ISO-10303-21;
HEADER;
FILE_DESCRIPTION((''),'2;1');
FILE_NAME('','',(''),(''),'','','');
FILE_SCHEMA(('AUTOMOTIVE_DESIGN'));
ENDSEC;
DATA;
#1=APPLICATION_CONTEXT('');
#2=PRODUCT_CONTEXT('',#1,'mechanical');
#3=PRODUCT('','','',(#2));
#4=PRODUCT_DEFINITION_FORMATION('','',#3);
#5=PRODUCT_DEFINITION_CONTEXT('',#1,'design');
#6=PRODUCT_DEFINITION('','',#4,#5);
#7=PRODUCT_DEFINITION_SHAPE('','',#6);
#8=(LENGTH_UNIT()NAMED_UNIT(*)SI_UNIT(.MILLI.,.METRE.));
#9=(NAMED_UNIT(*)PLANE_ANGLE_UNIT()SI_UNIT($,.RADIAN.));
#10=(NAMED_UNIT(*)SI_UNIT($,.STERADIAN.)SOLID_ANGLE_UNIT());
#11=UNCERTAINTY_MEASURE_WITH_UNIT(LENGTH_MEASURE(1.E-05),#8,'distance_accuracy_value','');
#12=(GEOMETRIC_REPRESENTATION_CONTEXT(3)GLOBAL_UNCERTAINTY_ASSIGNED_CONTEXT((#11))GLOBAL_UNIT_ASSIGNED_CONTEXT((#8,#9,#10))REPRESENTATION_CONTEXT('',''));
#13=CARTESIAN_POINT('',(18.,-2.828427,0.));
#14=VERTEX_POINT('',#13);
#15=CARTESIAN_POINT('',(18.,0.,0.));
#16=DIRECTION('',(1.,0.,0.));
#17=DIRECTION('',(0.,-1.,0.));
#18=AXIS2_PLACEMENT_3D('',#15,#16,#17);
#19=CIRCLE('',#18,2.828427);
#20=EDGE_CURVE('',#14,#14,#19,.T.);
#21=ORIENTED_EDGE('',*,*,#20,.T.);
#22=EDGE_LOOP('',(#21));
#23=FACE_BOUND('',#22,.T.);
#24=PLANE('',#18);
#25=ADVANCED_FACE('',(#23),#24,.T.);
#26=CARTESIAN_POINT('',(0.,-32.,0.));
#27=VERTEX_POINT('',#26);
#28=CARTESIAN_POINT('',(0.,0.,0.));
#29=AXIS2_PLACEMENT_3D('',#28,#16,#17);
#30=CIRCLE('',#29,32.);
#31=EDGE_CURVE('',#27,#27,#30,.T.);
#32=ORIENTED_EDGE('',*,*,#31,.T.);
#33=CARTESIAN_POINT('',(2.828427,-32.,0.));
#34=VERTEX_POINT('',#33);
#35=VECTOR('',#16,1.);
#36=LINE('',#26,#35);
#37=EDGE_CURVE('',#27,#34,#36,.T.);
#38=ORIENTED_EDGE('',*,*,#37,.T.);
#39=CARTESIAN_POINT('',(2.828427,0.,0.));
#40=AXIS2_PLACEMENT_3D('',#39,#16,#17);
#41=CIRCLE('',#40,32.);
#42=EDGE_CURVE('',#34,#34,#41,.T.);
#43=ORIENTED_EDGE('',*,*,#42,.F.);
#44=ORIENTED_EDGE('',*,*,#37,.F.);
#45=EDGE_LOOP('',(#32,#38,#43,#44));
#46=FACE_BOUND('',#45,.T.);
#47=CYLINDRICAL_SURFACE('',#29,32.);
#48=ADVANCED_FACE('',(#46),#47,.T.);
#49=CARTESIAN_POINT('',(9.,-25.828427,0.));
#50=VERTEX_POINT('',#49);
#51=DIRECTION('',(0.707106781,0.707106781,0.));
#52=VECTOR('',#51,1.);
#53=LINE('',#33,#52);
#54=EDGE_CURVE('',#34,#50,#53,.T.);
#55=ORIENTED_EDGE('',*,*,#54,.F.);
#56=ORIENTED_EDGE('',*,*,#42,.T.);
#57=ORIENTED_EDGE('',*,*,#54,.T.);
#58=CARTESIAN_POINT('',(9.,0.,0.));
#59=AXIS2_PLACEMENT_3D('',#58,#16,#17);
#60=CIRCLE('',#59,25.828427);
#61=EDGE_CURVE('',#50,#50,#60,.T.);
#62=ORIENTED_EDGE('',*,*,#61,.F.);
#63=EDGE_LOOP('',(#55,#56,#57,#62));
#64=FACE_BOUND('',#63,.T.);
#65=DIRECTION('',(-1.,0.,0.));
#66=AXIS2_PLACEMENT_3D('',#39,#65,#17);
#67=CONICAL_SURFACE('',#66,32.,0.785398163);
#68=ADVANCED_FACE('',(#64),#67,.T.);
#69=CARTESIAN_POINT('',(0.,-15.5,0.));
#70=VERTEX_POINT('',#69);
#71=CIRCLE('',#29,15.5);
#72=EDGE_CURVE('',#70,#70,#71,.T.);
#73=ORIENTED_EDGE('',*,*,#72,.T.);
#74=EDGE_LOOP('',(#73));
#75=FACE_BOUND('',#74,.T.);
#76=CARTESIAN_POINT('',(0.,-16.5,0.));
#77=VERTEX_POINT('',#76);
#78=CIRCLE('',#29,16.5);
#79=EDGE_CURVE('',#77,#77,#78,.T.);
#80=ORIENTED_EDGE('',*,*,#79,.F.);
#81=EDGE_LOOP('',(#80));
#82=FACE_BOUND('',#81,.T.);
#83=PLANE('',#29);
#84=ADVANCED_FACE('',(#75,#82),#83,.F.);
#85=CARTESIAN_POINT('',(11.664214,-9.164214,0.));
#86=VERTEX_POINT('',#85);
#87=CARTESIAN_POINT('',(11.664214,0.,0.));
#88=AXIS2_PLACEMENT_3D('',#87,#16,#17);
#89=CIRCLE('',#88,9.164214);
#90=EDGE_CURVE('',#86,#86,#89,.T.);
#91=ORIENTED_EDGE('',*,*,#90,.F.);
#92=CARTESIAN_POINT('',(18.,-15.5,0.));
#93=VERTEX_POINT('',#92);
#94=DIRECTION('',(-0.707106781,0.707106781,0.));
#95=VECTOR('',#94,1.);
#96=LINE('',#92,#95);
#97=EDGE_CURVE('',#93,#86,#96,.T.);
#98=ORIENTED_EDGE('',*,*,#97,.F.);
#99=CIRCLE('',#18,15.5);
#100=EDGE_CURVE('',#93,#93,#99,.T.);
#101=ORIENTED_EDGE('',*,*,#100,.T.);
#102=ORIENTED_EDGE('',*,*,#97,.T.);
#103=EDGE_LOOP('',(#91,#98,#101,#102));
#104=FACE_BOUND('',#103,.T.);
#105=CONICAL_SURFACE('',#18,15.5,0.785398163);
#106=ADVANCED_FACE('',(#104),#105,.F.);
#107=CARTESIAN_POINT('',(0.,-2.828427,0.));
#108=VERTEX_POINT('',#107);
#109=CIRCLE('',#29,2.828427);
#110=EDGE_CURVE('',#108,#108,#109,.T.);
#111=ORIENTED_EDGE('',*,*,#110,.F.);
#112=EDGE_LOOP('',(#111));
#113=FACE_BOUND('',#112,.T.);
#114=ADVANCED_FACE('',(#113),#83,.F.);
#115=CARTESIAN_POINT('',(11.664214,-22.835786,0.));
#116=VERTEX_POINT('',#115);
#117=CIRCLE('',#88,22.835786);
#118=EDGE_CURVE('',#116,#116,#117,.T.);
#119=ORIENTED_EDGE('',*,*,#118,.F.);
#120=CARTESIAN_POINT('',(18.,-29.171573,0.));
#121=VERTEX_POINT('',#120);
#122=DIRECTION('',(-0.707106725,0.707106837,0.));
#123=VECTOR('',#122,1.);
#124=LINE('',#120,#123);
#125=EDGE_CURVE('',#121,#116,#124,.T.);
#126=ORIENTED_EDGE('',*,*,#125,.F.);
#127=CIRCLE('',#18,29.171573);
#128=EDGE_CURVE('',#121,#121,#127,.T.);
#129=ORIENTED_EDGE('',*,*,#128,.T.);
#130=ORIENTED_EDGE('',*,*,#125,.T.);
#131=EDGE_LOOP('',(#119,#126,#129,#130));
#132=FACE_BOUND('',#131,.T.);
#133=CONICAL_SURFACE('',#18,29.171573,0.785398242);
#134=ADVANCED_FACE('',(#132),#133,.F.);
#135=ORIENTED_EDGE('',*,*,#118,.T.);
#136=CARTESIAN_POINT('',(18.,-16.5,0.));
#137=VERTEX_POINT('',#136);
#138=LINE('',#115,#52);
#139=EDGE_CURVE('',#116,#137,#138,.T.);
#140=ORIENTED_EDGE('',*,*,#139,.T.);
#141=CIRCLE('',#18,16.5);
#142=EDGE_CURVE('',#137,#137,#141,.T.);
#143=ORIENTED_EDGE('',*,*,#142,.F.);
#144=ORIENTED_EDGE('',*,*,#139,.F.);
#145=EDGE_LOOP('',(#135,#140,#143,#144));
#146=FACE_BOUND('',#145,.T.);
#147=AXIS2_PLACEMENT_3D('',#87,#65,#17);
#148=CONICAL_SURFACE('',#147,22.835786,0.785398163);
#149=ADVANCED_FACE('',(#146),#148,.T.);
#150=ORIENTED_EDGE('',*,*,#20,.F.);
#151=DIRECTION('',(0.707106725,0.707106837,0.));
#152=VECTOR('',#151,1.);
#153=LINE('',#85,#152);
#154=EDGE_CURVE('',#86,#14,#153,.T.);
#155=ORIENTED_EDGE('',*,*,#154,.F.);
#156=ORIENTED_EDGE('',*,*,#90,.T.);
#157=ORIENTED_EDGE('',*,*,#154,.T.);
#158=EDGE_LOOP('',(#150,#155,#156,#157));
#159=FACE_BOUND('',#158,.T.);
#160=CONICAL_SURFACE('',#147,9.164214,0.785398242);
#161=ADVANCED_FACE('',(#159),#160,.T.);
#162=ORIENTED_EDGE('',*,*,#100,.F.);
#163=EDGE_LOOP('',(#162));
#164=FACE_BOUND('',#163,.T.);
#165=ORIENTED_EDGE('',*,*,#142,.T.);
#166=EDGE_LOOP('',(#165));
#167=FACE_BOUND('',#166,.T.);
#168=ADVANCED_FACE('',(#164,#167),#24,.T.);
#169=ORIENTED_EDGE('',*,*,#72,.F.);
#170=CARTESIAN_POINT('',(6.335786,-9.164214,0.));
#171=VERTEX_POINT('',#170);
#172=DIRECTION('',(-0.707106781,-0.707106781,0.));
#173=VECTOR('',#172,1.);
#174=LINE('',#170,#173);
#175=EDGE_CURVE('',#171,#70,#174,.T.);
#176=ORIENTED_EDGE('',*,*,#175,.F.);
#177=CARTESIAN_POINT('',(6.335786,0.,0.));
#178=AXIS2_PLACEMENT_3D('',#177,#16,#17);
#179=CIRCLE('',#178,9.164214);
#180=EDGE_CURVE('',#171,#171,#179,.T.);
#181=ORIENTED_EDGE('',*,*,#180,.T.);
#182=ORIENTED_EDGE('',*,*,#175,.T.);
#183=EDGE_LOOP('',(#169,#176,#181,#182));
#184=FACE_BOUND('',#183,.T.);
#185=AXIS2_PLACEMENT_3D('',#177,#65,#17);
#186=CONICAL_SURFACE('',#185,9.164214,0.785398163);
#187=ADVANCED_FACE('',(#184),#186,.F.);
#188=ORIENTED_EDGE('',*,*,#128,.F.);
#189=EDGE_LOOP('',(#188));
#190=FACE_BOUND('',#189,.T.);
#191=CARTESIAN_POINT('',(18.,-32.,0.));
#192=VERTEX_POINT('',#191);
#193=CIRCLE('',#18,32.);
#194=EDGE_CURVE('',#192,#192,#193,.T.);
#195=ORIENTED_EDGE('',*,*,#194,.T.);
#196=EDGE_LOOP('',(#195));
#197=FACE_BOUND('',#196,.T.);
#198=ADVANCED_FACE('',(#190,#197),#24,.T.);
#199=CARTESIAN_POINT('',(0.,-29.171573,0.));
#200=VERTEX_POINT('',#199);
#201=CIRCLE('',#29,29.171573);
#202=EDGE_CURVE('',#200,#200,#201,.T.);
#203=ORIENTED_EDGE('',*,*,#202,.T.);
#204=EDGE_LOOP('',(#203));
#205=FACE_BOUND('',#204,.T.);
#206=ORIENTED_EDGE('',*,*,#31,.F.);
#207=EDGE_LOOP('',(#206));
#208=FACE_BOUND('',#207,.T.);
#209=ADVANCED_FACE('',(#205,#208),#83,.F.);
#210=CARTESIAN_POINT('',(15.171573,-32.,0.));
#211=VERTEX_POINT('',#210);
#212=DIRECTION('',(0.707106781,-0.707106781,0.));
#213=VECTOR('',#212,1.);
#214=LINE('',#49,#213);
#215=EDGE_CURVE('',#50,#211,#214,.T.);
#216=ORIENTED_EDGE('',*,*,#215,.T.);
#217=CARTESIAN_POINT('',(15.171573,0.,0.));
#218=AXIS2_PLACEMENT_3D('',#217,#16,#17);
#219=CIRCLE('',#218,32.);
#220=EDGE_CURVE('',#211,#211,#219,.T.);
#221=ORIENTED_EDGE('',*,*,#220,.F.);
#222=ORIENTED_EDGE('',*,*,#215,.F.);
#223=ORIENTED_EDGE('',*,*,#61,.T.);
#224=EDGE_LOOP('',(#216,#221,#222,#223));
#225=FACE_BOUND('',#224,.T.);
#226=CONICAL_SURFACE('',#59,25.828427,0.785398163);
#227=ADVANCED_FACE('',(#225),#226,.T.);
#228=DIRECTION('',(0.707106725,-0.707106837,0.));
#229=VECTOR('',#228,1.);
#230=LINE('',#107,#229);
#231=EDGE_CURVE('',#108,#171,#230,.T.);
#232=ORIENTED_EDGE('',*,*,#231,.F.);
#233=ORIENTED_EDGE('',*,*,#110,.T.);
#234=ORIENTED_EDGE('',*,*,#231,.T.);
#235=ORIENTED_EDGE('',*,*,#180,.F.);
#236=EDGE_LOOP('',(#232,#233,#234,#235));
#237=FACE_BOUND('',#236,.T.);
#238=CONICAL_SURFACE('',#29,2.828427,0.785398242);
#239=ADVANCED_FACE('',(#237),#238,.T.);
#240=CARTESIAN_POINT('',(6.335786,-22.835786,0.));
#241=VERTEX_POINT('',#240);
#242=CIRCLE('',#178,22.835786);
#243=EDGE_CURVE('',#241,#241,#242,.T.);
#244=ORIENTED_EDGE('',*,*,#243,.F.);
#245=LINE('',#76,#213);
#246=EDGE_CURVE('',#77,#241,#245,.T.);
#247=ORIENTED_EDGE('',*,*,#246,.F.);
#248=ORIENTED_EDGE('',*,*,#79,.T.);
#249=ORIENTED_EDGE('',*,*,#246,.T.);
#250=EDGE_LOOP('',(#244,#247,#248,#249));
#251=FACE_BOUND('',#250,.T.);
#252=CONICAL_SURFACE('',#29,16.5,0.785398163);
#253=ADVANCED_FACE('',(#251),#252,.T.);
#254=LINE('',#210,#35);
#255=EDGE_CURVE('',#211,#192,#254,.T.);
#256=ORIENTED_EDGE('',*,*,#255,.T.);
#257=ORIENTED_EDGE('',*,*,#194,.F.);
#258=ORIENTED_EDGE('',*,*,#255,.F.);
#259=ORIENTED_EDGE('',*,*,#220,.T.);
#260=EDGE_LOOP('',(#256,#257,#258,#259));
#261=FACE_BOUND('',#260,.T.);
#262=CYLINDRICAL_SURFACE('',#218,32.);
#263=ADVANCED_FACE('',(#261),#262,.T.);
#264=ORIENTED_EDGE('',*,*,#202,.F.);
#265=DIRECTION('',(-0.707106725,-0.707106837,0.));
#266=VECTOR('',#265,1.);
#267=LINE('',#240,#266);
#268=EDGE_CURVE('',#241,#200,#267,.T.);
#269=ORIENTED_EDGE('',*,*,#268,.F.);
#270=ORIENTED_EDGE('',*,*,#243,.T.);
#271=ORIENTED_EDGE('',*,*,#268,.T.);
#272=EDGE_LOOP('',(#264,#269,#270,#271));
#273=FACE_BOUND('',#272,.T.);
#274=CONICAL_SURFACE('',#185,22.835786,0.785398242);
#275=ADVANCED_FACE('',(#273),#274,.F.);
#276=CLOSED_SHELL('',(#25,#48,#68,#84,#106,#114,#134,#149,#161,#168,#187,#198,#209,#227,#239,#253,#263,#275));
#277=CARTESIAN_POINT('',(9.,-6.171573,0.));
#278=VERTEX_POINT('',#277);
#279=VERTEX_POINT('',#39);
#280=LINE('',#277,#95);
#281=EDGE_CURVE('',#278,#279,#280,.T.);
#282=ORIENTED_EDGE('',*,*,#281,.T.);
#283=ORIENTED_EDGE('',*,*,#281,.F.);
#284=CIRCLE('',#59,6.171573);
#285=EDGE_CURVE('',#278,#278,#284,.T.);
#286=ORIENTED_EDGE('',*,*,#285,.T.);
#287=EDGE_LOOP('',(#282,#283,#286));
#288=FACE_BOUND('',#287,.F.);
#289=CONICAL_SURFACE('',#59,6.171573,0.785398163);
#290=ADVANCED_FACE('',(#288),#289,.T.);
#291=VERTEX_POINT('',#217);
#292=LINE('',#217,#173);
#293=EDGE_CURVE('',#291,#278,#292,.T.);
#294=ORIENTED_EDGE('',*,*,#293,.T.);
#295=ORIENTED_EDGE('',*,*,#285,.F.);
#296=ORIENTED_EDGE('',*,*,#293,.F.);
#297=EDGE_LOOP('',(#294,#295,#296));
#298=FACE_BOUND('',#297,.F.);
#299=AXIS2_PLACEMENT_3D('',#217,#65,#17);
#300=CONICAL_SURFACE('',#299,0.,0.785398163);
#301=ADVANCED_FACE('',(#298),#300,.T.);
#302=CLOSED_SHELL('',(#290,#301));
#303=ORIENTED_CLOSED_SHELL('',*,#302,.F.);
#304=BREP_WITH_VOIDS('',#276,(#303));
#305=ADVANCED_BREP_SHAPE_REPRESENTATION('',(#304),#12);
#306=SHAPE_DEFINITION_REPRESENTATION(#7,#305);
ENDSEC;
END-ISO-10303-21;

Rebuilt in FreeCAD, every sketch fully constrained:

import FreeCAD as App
import Part
import Sketcher
Q = App.Units.Quantity

doc = App.newDocument("Part")
body = doc.addObject("PartDesign::Body", "Body")

sketch1 = body.newObject("Sketcher::SketchObject", "Sketch")
sketch1.AttachmentSupport = (doc.getObject("XY_Plane"), [""])
sketch1.MapMode = "FlatFace"
sketch1.addGeometry(Part.LineSegment(App.Vector(2.8, 0, 0), App.Vector(0, 0, 0)), False)
sketch1.addGeometry(Part.LineSegment(App.Vector(0, 0, 0), App.Vector(0, -2.8, 0)), False)
sketch1.addGeometry(Part.LineSegment(App.Vector(0, -2.8, 0), App.Vector(6.3, -9.2, 0)), False)
sketch1.addGeometry(Part.LineSegment(App.Vector(6.3, -9.2, 0), App.Vector(0, -15.5, 0)), False)
sketch1.addGeometry(Part.LineSegment(App.Vector(0, -15.5, 0), App.Vector(0, -16.5, 0)), False)
sketch1.addGeometry(Part.LineSegment(App.Vector(0, -16.5, 0), App.Vector(6.3, -22.8, 0)), False)
sketch1.addGeometry(Part.LineSegment(App.Vector(6.3, -22.8, 0), App.Vector(0, -29.2, 0)), False)
sketch1.addGeometry(Part.LineSegment(App.Vector(0, -29.2, 0), App.Vector(0, -32, 0)), False)
sketch1.addGeometry(Part.LineSegment(App.Vector(0, -32, 0), App.Vector(2.8, -32, 0)), False)
sketch1.addGeometry(Part.LineSegment(App.Vector(2.8, -32, 0), App.Vector(9, -25.8, 0)), False)
sketch1.addGeometry(Part.LineSegment(App.Vector(9, -25.8, 0), App.Vector(15.2, -32, 0)), False)
sketch1.addGeometry(Part.LineSegment(App.Vector(15.2, -32, 0), App.Vector(18, -32, 0)), False)
sketch1.addGeometry(Part.LineSegment(App.Vector(18, -32, 0), App.Vector(18, -29.2, 0)), False)
sketch1.addGeometry(Part.LineSegment(App.Vector(18, -29.2, 0), App.Vector(11.7, -22.8, 0)), False)
sketch1.addGeometry(Part.LineSegment(App.Vector(11.7, -22.8, 0), App.Vector(18, -16.5, 0)), False)
sketch1.addGeometry(Part.LineSegment(App.Vector(18, -16.5, 0), App.Vector(18, -15.5, 0)), False)
sketch1.addGeometry(Part.LineSegment(App.Vector(18, -15.5, 0), App.Vector(11.7, -9.2, 0)), False)
sketch1.addGeometry(Part.LineSegment(App.Vector(11.7, -9.2, 0), App.Vector(18, -2.8, 0)), False)
sketch1.addGeometry(Part.LineSegment(App.Vector(18, -2.8, 0), App.Vector(18, 0, 0)), False)
sketch1.addGeometry(Part.LineSegment(App.Vector(18, 0, 0), App.Vector(15.2, 0, 0)), False)
sketch1.addGeometry(Part.LineSegment(App.Vector(15.2, 0, 0), App.Vector(9, -6.2, 0)), False)
sketch1.addGeometry(Part.LineSegment(App.Vector(9, -6.2, 0), App.Vector(2.8, 0, 0)), False)
sketch1.addConstraint(Sketcher.Constraint("Coincident", 0, 2, 1, 1))
sketch1.addConstraint(Sketcher.Constraint("Coincident", 1, 2, 2, 1))
sketch1.addConstraint(Sketcher.Constraint("Coincident", 2, 2, 3, 1))
sketch1.addConstraint(Sketcher.Constraint("Coincident", 3, 2, 4, 1))
sketch1.addConstraint(Sketcher.Constraint("Coincident", 4, 2, 5, 1))
sketch1.addConstraint(Sketcher.Constraint("Coincident", 5, 2, 6, 1))
sketch1.addConstraint(Sketcher.Constraint("Coincident", 6, 2, 7, 1))
sketch1.addConstraint(Sketcher.Constraint("Coincident", 7, 2, 8, 1))
sketch1.addConstraint(Sketcher.Constraint("Coincident", 8, 2, 9, 1))
sketch1.addConstraint(Sketcher.Constraint("Coincident", 9, 2, 10, 1))
sketch1.addConstraint(Sketcher.Constraint("Coincident", 10, 2, 11, 1))
sketch1.addConstraint(Sketcher.Constraint("Coincident", 11, 2, 12, 1))
sketch1.addConstraint(Sketcher.Constraint("Coincident", 12, 2, 13, 1))
sketch1.addConstraint(Sketcher.Constraint("Coincident", 13, 2, 14, 1))
sketch1.addConstraint(Sketcher.Constraint("Coincident", 14, 2, 15, 1))
sketch1.addConstraint(Sketcher.Constraint("Coincident", 15, 2, 16, 1))
sketch1.addConstraint(Sketcher.Constraint("Coincident", 16, 2, 17, 1))
sketch1.addConstraint(Sketcher.Constraint("Coincident", 17, 2, 18, 1))
sketch1.addConstraint(Sketcher.Constraint("Coincident", 18, 2, 19, 1))
sketch1.addConstraint(Sketcher.Constraint("Coincident", 19, 2, 20, 1))
sketch1.addConstraint(Sketcher.Constraint("Coincident", 20, 2, 21, 1))
sketch1.addConstraint(Sketcher.Constraint("Coincident", 21, 2, 0, 1))
sketch1.addConstraint(Sketcher.Constraint("Horizontal", 0))
sketch1.addConstraint(Sketcher.Constraint("Vertical", 1))
sketch1.addConstraint(Sketcher.Constraint("Vertical", 4))
sketch1.addConstraint(Sketcher.Constraint("Vertical", 7))
sketch1.addConstraint(Sketcher.Constraint("Horizontal", 8))
sketch1.addConstraint(Sketcher.Constraint("Horizontal", 11))
sketch1.addConstraint(Sketcher.Constraint("Vertical", 12))
sketch1.addConstraint(Sketcher.Constraint("Vertical", 15))
sketch1.addConstraint(Sketcher.Constraint("Vertical", 18))
sketch1.addConstraint(Sketcher.Constraint("Horizontal", 19))
sketch1.addConstraint(Sketcher.Constraint("Coincident", 0, 2, -1, 1))
sketch1.addConstraint(Sketcher.Constraint("PointOnObject", 3, 2, -2))
sketch1.addConstraint(Sketcher.Constraint("PointOnObject", 6, 2, -2))
sketch1.addConstraint(Sketcher.Constraint("PointOnObject", 18, 2, -1))
sketch1.addConstraint(Sketcher.Constraint("Perpendicular", 2, 3))
sketch1.addConstraint(Sketcher.Constraint("Perpendicular", 3, 5))
sketch1.addConstraint(Sketcher.Constraint("Perpendicular", 5, 6))
sketch1.addConstraint(Sketcher.Constraint("Parallel", 6, 9))
sketch1.addConstraint(Sketcher.Constraint("Perpendicular", 9, 10))
sketch1.addConstraint(Sketcher.Constraint("Parallel", 10, 13))
sketch1.addConstraint(Sketcher.Constraint("Perpendicular", 13, 14))
sketch1.addConstraint(Sketcher.Constraint("Perpendicular", 14, 16))
sketch1.addConstraint(Sketcher.Constraint("Perpendicular", 16, 17))
sketch1.addConstraint(Sketcher.Constraint("Parallel", 17, 20))
sketch1.addConstraint(Sketcher.Constraint("Perpendicular", 20, 21))
sketch1.addConstraint(Sketcher.Constraint("Horizontal", 8, 2, 10, 2))
sketch1.addConstraint(Sketcher.Constraint("Horizontal", 6, 2, 12, 2))
sketch1.addConstraint(Sketcher.Constraint("Horizontal", 5, 2, 13, 2))
sketch1.addConstraint(Sketcher.Constraint("Horizontal", 4, 2, 14, 2))
sketch1.addConstraint(Sketcher.Constraint("Horizontal", 3, 2, 15, 2))
sketch1.addConstraint(Sketcher.Constraint("Horizontal", 2, 2, 16, 2))
sketch1.addConstraint(Sketcher.Constraint("Horizontal", 1, 2, 17, 2))
sketch1.addConstraint(Sketcher.Constraint("Vertical", 2, 2, 5, 2))
sketch1.addConstraint(Sketcher.Constraint("Vertical", 12, 2, 14, 2))
sketch1.addConstraint(Sketcher.Constraint("Vertical", 10, 2, 19, 2))
sketch1.addConstraint(Sketcher.Constraint("Vertical", 9, 2, 20, 2))
sketch1.addConstraint(Sketcher.Constraint("Equal", 8, 11))
sketch1.addConstraint(Sketcher.Constraint("Equal", 19, 1))
sketch1.addConstraint(Sketcher.Constraint("Equal", 1, 7))
sketch1.addConstraint(Sketcher.Constraint("DistanceY", 4, 2, 4, 1, Q("1 mm")))
sketch1.addConstraint(Sketcher.Constraint("DistanceY", 7, 2, -1, 1, Q("32 mm")))
sketch1.addConstraint(Sketcher.Constraint("DistanceX", -1, 1, 9, 2, Q("9 mm")))
sketch1.addConstraint(Sketcher.Constraint("DistanceX", 0, 2, 0, 1, Q("2.828427 mm")))
revolution = body.newObject("PartDesign::Revolution", "Revolution")
revolution.Profile = sketch1
revolution.ReferenceAxis = (sketch1, ["H_Axis"])
revolution.Angle = 360

doc.recompute()
